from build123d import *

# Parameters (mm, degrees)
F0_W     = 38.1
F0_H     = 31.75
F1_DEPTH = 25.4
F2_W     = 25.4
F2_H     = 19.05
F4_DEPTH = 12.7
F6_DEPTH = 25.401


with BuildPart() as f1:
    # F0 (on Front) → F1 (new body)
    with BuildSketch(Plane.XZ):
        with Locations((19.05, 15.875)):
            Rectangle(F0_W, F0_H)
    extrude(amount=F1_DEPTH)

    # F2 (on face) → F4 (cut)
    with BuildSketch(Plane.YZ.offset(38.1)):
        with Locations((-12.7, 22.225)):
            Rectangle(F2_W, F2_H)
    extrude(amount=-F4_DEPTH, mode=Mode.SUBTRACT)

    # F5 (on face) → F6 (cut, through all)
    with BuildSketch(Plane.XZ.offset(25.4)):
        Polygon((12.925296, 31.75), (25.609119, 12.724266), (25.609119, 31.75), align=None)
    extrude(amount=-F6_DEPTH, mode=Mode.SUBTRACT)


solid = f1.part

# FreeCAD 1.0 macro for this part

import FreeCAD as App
import Part
import Sketcher
from FreeCAD import Vector
Q = App.Units.Quantity

doc = App.newDocument("Part")
params = doc.addObject("Spreadsheet::Sheet", "Params")
for row, (alias, value) in enumerate([
    ("sketch1_width", "1.5 in"),
    ("sketch1_height", "1.25 in"),
    ("pad1_length", "1 in"),
    ("sketch2_width", "1 in"),
    ("sketch2_height", "0.75 in"),
    ("pocket1_length", "0.5 in"),
], start=1):
    params.set(f"A{row}", alias)
    params.set(f"B{row}", "=" + value)
    params.setAlias(f"B{row}", alias)

body = doc.addObject("PartDesign::Body", "Body")

sketch1 = body.newObject("Sketcher::SketchObject", "Sketch")
sketch1.AttachmentSupport = (doc.getObject("XZ_Plane"), [""])
sketch1.MapMode = "FlatFace"
sketch1.addGeometry([
    Part.LineSegment(Vector(0, 32, 0), Vector(0, 0, 0)),
    Part.LineSegment(Vector(0, 0, 0), Vector(38, 0, 0)),
    Part.LineSegment(Vector(38, 0, 0), Vector(38, 32, 0)),
    Part.LineSegment(Vector(38, 32, 0), Vector(0, 32, 0)),
], False)
sketch1.addConstraint([
    Sketcher.Constraint("Coincident", 0, 2, 1, 1),
    Sketcher.Constraint("Coincident", 1, 2, 2, 1),
    Sketcher.Constraint("Coincident", 2, 2, 3, 1),
    Sketcher.Constraint("Coincident", 3, 2, 0, 1),
    Sketcher.Constraint("Vertical", 0),
    Sketcher.Constraint("Horizontal", 1),
    Sketcher.Constraint("Vertical", 2),
    Sketcher.Constraint("Horizontal", 3),
    Sketcher.Constraint("Coincident", 0, 2, -1, 1),
    Sketcher.Constraint("DistanceX", 1, 1, 1, 2, Q("1.5 in")),
    Sketcher.Constraint("DistanceY", 0, 2, 0, 1, Q("1.25 in")),
])
sketch1.setExpression("Constraints[9]", "Params.sketch1_width")
sketch1.setExpression("Constraints[10]", "Params.sketch1_height")
pad1 = body.newObject("PartDesign::Pad", "Pad")
pad1.Profile = sketch1
pad1.setExpression("Length", "Params.pad1_length")

sketch2 = body.newObject("Sketcher::SketchObject", "Sketch001")
sketch2.AttachmentSupport = (doc.getObject("YZ_Plane"), [""])
sketch2.MapMode = "FlatFace"
sketch2.AttachmentOffset = App.Placement(Vector(0, 0, 1.5 * 25.4), App.Rotation())
sketch2.addGeometry([
    Part.LineSegment(Vector(-25, 32, 0), Vector(-25, 13, 0)),
    Part.LineSegment(Vector(-25, 13, 0), Vector(0, 13, 0)),
    Part.LineSegment(Vector(0, 13, 0), Vector(0, 32, 0)),
    Part.LineSegment(Vector(0, 32, 0), Vector(-25, 32, 0)),
], False)
sketch2.addConstraint([
    Sketcher.Constraint("Coincident", 0, 2, 1, 1),
    Sketcher.Constraint("Coincident", 1, 2, 2, 1),
    Sketcher.Constraint("Coincident", 2, 2, 3, 1),
    Sketcher.Constraint("Coincident", 3, 2, 0, 1),
    Sketcher.Constraint("Vertical", 0),
    Sketcher.Constraint("Horizontal", 1),
    Sketcher.Constraint("Vertical", 2),
    Sketcher.Constraint("Horizontal", 3),
    Sketcher.Constraint("PointOnObject", 1, 2, -2),
    Sketcher.Constraint("DistanceX", 1, 1, 1, 2, Q("1 in")),
    Sketcher.Constraint("DistanceY", 0, 2, 0, 1, Q("0.75 in")),
    Sketcher.Constraint("DistanceY", -1, 1, 0, 2, Q("0.5 in")),
])
sketch2.setExpression("Constraints[9]", "Params.sketch2_width")
sketch2.setExpression("Constraints[10]", "Params.sketch2_height")
pocket1 = body.newObject("PartDesign::Pocket", "Pocket")
pocket1.Profile = sketch2
pocket1.setExpression("Length", "Params.pocket1_length")

sketch3 = body.newObject("Sketcher::SketchObject", "Sketch002")
sketch3.AttachmentSupport = (doc.getObject("XZ_Plane"), [""])
sketch3.MapMode = "FlatFace"
sketch3.AttachmentOffset = App.Placement(Vector(0, 0, 1 * 25.4), App.Rotation())
sketch3.addGeometry([
    Part.LineSegment(Vector(13, 32, 0), Vector(26, 13, 0)),
    Part.LineSegment(Vector(26, 13, 0), Vector(26, 32, 0)),
    Part.LineSegment(Vector(26, 32, 0), Vector(13, 32, 0)),
], False)
sketch3.addConstraint([
    Sketcher.Constraint("Coincident", 0, 2, 1, 1),
    Sketcher.Constraint("Coincident", 1, 2, 2, 1),
    Sketcher.Constraint("Coincident", 2, 2, 0, 1),
    Sketcher.Constraint("Vertical", 1),
    Sketcher.Constraint("Horizontal", 2),
    Sketcher.Constraint("DistanceY", -1, 1, 1, 2, Q("1.25 in")),
    Sketcher.Constraint("DistanceX", 2, 2, 2, 1, Q("12.683823 mm")),
    Sketcher.Constraint("DistanceY", 1, 1, 1, 2, Q("19.025734 mm")),
    Sketcher.Constraint("DistanceX", -1, 1, 0, 2, Q("25.609119 mm")),
])
pocket2 = body.newObject("PartDesign::Pocket", "Pocket001")
pocket2.Profile = sketch3
pocket2.Type = "ThroughAll"

doc.recompute()
